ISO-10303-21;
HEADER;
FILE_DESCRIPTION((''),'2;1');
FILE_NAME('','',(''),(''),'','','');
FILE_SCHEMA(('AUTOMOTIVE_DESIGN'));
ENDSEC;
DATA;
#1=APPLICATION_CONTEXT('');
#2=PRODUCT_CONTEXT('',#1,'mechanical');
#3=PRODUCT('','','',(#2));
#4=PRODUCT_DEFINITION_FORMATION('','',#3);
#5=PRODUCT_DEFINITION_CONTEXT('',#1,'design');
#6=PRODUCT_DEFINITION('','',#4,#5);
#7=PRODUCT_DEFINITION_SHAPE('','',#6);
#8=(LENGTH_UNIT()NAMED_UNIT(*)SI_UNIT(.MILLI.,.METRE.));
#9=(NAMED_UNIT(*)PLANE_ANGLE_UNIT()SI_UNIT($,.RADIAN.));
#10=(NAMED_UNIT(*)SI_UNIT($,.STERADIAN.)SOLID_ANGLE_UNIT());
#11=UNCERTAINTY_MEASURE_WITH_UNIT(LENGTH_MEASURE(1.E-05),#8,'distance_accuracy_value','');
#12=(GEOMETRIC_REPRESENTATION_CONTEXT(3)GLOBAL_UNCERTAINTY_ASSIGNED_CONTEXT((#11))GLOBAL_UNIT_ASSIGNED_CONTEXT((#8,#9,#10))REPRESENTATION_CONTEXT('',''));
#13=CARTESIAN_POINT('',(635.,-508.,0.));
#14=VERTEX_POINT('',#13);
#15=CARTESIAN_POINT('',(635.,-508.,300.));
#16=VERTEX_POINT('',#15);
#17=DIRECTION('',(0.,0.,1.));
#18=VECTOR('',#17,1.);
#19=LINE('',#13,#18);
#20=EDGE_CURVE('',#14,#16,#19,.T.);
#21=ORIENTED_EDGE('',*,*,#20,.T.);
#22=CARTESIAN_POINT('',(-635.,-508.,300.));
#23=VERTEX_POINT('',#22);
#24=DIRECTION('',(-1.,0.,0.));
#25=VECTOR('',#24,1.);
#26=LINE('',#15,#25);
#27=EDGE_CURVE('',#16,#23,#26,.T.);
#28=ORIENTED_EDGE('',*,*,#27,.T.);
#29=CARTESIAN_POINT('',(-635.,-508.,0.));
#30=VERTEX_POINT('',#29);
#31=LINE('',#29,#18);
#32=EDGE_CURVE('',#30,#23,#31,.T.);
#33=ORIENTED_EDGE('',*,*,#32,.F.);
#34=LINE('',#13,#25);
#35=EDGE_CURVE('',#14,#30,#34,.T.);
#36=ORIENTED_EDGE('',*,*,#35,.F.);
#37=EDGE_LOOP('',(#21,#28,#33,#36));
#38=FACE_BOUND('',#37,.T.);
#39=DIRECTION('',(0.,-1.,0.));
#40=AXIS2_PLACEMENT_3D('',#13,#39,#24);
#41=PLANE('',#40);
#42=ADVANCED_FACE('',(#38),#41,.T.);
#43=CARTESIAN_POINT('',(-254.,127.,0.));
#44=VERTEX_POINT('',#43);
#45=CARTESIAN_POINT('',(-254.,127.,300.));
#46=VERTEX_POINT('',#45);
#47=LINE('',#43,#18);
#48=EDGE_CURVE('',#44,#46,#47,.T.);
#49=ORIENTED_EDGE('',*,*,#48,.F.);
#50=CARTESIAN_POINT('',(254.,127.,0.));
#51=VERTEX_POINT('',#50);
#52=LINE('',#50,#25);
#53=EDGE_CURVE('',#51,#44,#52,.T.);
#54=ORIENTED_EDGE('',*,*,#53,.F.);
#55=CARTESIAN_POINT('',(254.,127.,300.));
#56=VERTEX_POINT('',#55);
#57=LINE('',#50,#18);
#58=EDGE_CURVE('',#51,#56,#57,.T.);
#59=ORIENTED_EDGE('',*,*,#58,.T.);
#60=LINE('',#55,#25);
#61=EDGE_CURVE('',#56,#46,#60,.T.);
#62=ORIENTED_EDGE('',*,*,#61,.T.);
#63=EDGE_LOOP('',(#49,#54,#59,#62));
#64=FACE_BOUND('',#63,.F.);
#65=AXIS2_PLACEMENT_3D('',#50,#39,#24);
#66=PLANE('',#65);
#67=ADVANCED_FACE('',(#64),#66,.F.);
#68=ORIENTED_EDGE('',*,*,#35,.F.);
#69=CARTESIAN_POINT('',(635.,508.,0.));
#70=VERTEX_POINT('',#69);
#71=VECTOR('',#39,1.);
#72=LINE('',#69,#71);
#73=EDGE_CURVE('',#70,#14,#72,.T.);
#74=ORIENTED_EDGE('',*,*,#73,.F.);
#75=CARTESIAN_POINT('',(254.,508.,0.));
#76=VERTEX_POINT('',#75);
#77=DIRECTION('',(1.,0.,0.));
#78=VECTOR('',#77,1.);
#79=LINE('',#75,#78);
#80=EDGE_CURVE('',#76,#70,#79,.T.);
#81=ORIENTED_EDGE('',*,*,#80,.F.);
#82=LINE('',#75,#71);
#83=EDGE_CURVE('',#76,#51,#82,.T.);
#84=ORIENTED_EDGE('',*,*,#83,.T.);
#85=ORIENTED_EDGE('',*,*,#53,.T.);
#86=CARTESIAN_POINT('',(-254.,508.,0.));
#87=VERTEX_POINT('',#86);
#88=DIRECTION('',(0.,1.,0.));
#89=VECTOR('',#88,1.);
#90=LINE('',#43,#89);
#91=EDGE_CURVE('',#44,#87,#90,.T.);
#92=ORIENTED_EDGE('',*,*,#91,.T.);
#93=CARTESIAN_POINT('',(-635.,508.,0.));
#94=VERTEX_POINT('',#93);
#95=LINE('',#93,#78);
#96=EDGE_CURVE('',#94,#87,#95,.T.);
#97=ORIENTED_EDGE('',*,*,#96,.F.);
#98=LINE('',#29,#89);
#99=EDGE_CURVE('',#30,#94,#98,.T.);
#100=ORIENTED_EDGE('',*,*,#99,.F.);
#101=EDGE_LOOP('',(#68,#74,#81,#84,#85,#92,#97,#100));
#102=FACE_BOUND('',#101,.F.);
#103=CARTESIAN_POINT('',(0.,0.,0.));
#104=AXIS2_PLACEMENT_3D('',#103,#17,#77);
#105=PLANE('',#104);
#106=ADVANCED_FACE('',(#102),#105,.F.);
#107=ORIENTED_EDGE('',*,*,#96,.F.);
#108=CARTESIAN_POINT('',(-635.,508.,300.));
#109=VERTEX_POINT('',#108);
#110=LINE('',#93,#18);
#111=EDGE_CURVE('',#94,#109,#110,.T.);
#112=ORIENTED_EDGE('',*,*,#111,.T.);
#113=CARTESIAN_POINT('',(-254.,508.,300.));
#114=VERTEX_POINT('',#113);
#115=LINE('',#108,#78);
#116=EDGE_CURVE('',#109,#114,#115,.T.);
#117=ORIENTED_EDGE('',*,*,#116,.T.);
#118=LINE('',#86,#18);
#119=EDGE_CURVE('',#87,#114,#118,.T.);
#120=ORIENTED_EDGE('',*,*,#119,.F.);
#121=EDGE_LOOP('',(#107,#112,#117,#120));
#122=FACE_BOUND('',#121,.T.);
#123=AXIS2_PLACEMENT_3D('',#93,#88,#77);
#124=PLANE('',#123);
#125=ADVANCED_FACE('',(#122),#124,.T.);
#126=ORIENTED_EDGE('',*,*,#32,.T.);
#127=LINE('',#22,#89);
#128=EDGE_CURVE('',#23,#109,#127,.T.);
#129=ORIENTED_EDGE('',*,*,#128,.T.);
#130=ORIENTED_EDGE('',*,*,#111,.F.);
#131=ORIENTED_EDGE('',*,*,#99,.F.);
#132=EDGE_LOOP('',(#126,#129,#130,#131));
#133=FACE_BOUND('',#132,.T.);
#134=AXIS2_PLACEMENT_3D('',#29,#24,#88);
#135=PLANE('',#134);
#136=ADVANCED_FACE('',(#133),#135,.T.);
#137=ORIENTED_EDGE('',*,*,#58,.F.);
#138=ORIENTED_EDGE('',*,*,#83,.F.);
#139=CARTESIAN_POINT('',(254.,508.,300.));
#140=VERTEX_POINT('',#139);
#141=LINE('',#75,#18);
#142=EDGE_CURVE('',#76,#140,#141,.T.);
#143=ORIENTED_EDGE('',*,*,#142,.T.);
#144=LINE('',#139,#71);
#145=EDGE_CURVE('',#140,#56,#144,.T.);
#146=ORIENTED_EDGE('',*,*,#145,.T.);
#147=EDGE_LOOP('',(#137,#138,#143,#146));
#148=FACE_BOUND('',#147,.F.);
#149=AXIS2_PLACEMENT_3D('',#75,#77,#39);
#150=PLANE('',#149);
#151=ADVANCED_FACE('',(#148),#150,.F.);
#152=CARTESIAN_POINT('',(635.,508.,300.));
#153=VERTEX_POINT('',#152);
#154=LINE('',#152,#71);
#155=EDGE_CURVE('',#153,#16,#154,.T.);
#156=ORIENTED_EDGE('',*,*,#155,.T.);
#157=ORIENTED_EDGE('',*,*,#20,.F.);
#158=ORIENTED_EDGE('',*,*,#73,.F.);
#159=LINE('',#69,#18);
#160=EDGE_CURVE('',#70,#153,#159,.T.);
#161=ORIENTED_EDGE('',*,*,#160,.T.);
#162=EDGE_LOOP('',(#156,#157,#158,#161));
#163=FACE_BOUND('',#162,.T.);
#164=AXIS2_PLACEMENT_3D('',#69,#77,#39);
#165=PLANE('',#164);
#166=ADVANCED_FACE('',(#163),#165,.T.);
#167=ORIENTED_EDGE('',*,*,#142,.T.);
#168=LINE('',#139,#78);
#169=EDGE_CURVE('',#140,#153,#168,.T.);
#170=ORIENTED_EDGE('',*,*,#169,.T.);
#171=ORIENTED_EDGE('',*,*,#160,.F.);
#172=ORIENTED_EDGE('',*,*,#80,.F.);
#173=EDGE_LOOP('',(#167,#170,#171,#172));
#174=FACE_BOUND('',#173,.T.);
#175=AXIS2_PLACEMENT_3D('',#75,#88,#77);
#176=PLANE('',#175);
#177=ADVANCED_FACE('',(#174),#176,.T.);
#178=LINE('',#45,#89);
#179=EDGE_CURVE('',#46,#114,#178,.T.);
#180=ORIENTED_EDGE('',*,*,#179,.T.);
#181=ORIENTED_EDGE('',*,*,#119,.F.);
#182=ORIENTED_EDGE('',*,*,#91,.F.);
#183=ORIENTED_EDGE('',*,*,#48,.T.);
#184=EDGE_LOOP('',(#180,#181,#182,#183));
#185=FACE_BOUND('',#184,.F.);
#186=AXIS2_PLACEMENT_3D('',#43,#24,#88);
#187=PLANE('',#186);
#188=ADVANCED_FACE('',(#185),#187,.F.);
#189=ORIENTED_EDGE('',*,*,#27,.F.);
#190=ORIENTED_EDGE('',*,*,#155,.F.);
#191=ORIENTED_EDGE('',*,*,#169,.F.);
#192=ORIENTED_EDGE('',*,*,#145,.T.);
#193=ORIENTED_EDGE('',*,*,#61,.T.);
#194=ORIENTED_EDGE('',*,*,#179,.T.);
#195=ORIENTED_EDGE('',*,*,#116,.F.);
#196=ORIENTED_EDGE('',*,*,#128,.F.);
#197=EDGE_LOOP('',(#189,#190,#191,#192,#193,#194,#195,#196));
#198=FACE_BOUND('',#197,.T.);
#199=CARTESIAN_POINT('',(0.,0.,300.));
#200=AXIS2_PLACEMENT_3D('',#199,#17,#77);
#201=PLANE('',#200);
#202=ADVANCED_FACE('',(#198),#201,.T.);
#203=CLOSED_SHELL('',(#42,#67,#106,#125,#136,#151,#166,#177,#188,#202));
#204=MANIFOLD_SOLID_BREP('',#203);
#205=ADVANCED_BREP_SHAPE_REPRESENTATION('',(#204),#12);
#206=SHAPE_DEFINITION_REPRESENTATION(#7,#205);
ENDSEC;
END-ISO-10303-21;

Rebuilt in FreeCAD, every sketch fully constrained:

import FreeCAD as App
import Part
import Sketcher
Q = App.Units.Quantity

doc = App.newDocument("Part")
body = doc.addObject("PartDesign::Body", "Body")

sketch1 = body.newObject("Sketcher::SketchObject", "Sketch")
sketch1.AttachmentSupport = (doc.getObject("XY_Plane"), [""])
sketch1.MapMode = "FlatFace"
sketch1.addGeometry(Part.LineSegment(App.Vector(635, -508, 0), App.Vector(635, 508, 0)), False)
sketch1.addGeometry(Part.LineSegment(App.Vector(635, 508, 0), App.Vector(254, 508, 0)), False)
sketch1.addGeometry(Part.LineSegment(App.Vector(254, 508, 0), App.Vector(254, 127, 0)), False)
sketch1.addGeometry(Part.LineSegment(App.Vector(254, 127, 0), App.Vector(-254, 127, 0)), False)
sketch1.addGeometry(Part.LineSegment(App.Vector(-254, 127, 0), App.Vector(-254, 508, 0)), False)
sketch1.addGeometry(Part.LineSegment(App.Vector(-254, 508, 0), App.Vector(-635, 508, 0)), False)
sketch1.addGeometry(Part.LineSegment(App.Vector(-635, 508, 0), App.Vector(-635, -508, 0)), False)
sketch1.addGeometry(Part.LineSegment(App.Vector(-635, -508, 0), App.Vector(635, -508, 0)), False)
sketch1.addConstraint(Sketcher.Constraint("Coincident", 0, 2, 1, 1))
sketch1.addConstraint(Sketcher.Constraint("Coincident", 1, 2, 2, 1))
sketch1.addConstraint(Sketcher.Constraint("Coincident", 2, 2, 3, 1))
sketch1.addConstraint(Sketcher.Constraint("Coincident", 3, 2, 4, 1))
sketch1.addConstraint(Sketcher.Constraint("Coincident", 4, 2, 5, 1))
sketch1.addConstraint(Sketcher.Constraint("Coincident", 5, 2, 6, 1))
sketch1.addConstraint(Sketcher.Constraint("Coincident", 6, 2, 7, 1))
sketch1.addConstraint(Sketcher.Constraint("Coincident", 7, 2, 0, 1))
sketch1.addConstraint(Sketcher.Constraint("Vertical", 0))
sketch1.addConstraint(Sketcher.Constraint("Horizontal", 1))
sketch1.addConstraint(Sketcher.Constraint("Vertical", 2))
sketch1.addConstraint(Sketcher.Constraint("Horizontal", 3))
sketch1.addConstraint(Sketcher.Constraint("Vertical", 4))
sketch1.addConstraint(Sketcher.Constraint("Horizontal", 5))
sketch1.addConstraint(Sketcher.Constraint("Vertical", 6))
sketch1.addConstraint(Sketcher.Constraint("Horizontal", 7))
sketch1.addConstraint(Sketcher.Constraint("Symmetric", 0, 2, 6, 2, -1, 1))
sketch1.addConstraint(Sketcher.Constraint("Symmetric", 1, 2, 4, 2, -2))
sketch1.addConstraint(Sketcher.Constraint("Equal", 5, 2))
sketch1.addConstraint(Sketcher.Constraint("DistanceX", 7, 1, 7, 2, Q("50 in")))
sketch1.addConstraint(Sketcher.Constraint("DistanceY", 0, 1, 0, 2, Q("40 in")))
sketch1.addConstraint(Sketcher.Constraint("DistanceX", 1, 2, 1, 1, Q("15 in")))
pad1 = body.newObject("PartDesign::Pad", "Pad")
pad1.Profile = sketch1
pad1.Length = 300

doc.recompute()
